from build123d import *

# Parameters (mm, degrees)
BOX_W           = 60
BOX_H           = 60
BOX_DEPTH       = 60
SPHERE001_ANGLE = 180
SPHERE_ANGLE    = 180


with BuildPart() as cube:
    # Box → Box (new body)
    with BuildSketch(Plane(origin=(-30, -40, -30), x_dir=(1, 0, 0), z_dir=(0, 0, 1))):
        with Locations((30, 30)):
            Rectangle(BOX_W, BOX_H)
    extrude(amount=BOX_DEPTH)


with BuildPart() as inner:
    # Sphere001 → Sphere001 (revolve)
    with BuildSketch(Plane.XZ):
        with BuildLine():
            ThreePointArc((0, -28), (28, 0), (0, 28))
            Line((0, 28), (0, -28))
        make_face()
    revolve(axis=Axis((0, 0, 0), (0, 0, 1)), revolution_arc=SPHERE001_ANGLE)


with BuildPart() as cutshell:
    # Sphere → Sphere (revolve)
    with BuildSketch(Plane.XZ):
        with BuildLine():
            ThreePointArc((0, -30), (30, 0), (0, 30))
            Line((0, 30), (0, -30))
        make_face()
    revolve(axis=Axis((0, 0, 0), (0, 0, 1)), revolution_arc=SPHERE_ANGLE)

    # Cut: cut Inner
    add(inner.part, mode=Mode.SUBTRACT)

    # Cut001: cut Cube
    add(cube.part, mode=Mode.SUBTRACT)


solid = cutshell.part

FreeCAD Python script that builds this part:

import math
import FreeCAD as App
import Part
import Sketcher
Q = App.Units.Quantity

doc = App.newDocument("Part")
body = doc.addObject("PartDesign::Body", "Body")

# Sketch on XY plane
sketch1 = body.newObject("Sketcher::SketchObject", "Sketch")
sketch1.AttachmentSupport = (doc.getObject("XY_Plane"), [""])
sketch1.MapMode = "FlatFace"
sketch1.AttachmentOffset = App.Placement(App.Vector(0, 0, -30), App.Rotation())
sketch1.addGeometry(Part.LineSegment(App.Vector(-30, 20, 0), App.Vector(-30, -40, 0)), False)
sketch1.addGeometry(Part.LineSegment(App.Vector(-30, -40, 0), App.Vector(30, -40, 0)), False)
sketch1.addGeometry(Part.LineSegment(App.Vector(30, -40, 0), App.Vector(30, 20, 0)), False)
sketch1.addGeometry(Part.LineSegment(App.Vector(30, 20, 0), App.Vector(-30, 20, 0)), False)
sketch1.addConstraint(Sketcher.Constraint("Coincident", 0, 2, 1, 1))
sketch1.addConstraint(Sketcher.Constraint("Coincident", 1, 2, 2, 1))
sketch1.addConstraint(Sketcher.Constraint("Coincident", 2, 2, 3, 1))
sketch1.addConstraint(Sketcher.Constraint("Coincident", 3, 2, 0, 1))
sketch1.addConstraint(Sketcher.Constraint("Vertical", 0))
sketch1.addConstraint(Sketcher.Constraint("Horizontal", 1))
sketch1.addConstraint(Sketcher.Constraint("Vertical", 2))
sketch1.addConstraint(Sketcher.Constraint("Horizontal", 3))
sketch1.addConstraint(Sketcher.Constraint("Equal", 3, 0))
sketch1.addConstraint(Sketcher.Constraint("DistanceX", 1, 1, 1, 2, Q("60 mm")))
sketch1.addConstraint(Sketcher.Constraint("DistanceX", 0, 2, -1, 1, Q("30 mm")))
sketch1.addConstraint(Sketcher.Constraint("DistanceY", 0, 2, -1, 1, Q("40 mm")))
pad1 = body.newObject("PartDesign::Pad", "Pad")
pad1.Profile = sketch1
pad1.Length = 60
body2 = doc.addObject("PartDesign::Body", "Body001")

# Sketch on XZ plane
sketch2 = body2.newObject("Sketcher::SketchObject", "Sketch001")
sketch2.AttachmentSupport = (doc.getObject("XZ_Plane001"), [""])
sketch2.MapMode = "FlatFace"
sketch2.addGeometry(Part.ArcOfCircle(Part.Circle(App.Vector(0, 0, 0), App.Vector(0, 0, 1), 28), math.radians(-90), math.radians(90)), False)
sketch2.addGeometry(Part.LineSegment(App.Vector(0, 28, 0), App.Vector(0, -28, 0)), False)
sketch2.addConstraint(Sketcher.Constraint("Coincident", 0, 1, 1, 2))
sketch2.addConstraint(Sketcher.Constraint("Coincident", 1, 1, 0, 2))
sketch2.addConstraint(Sketcher.Constraint("Vertical", 1))
sketch2.addConstraint(Sketcher.Constraint("Coincident", 0, 3, -1, 1))
sketch2.addConstraint(Sketcher.Constraint("PointOnObject", 0, 1, -2))
sketch2.addConstraint(Sketcher.Constraint("Radius", 0, Q("28 mm")))
revolution = body2.newObject("PartDesign::Revolution", "Revolution")
revolution.Profile = sketch2
revolution.ReferenceAxis = (sketch2, ["V_Axis"])
revolution.Angle = 180
body3 = doc.addObject("PartDesign::Body", "Body002")

# Sketch on XZ plane
sketch3 = body3.newObject("Sketcher::SketchObject", "Sketch002")
sketch3.AttachmentSupport = (doc.getObject("XZ_Plane002"), [""])
sketch3.MapMode = "FlatFace"
sketch3.addGeometry(Part.ArcOfCircle(Part.Circle(App.Vector(0, 0, 0), App.Vector(0, 0, 1), 30), math.radians(-90), math.radians(90)), False)
sketch3.addGeometry(Part.LineSegment(App.Vector(0, 30, 0), App.Vector(0, -30, 0)), False)
sketch3.addConstraint(Sketcher.Constraint("Coincident", 0, 1, 1, 2))
sketch3.addConstraint(Sketcher.Constraint("Coincident", 1, 1, 0, 2))
sketch3.addConstraint(Sketcher.Constraint("Vertical", 1))
sketch3.addConstraint(Sketcher.Constraint("Coincident", 0, 3, -1, 1))
sketch3.addConstraint(Sketcher.Constraint("PointOnObject", 0, 1, -2))
sketch3.addConstraint(Sketcher.Constraint("Radius", 0, Q("30 mm")))
revolution2 = body3.newObject("PartDesign::Revolution", "Revolution001")
revolution2.Profile = sketch3
revolution2.ReferenceAxis = (sketch3, ["V_Axis"])
revolution2.Angle = 180
doc.recompute()

boolean = body3.newObject("PartDesign::Boolean", "Boolean")
boolean.Type = "Cut"
boolean.addObjects([body2])
doc.recompute()

boolean2 = body3.newObject("PartDesign::Boolean", "Boolean001")
boolean2.Type = "Cut"
boolean2.addObjects([body])

doc.recompute()
